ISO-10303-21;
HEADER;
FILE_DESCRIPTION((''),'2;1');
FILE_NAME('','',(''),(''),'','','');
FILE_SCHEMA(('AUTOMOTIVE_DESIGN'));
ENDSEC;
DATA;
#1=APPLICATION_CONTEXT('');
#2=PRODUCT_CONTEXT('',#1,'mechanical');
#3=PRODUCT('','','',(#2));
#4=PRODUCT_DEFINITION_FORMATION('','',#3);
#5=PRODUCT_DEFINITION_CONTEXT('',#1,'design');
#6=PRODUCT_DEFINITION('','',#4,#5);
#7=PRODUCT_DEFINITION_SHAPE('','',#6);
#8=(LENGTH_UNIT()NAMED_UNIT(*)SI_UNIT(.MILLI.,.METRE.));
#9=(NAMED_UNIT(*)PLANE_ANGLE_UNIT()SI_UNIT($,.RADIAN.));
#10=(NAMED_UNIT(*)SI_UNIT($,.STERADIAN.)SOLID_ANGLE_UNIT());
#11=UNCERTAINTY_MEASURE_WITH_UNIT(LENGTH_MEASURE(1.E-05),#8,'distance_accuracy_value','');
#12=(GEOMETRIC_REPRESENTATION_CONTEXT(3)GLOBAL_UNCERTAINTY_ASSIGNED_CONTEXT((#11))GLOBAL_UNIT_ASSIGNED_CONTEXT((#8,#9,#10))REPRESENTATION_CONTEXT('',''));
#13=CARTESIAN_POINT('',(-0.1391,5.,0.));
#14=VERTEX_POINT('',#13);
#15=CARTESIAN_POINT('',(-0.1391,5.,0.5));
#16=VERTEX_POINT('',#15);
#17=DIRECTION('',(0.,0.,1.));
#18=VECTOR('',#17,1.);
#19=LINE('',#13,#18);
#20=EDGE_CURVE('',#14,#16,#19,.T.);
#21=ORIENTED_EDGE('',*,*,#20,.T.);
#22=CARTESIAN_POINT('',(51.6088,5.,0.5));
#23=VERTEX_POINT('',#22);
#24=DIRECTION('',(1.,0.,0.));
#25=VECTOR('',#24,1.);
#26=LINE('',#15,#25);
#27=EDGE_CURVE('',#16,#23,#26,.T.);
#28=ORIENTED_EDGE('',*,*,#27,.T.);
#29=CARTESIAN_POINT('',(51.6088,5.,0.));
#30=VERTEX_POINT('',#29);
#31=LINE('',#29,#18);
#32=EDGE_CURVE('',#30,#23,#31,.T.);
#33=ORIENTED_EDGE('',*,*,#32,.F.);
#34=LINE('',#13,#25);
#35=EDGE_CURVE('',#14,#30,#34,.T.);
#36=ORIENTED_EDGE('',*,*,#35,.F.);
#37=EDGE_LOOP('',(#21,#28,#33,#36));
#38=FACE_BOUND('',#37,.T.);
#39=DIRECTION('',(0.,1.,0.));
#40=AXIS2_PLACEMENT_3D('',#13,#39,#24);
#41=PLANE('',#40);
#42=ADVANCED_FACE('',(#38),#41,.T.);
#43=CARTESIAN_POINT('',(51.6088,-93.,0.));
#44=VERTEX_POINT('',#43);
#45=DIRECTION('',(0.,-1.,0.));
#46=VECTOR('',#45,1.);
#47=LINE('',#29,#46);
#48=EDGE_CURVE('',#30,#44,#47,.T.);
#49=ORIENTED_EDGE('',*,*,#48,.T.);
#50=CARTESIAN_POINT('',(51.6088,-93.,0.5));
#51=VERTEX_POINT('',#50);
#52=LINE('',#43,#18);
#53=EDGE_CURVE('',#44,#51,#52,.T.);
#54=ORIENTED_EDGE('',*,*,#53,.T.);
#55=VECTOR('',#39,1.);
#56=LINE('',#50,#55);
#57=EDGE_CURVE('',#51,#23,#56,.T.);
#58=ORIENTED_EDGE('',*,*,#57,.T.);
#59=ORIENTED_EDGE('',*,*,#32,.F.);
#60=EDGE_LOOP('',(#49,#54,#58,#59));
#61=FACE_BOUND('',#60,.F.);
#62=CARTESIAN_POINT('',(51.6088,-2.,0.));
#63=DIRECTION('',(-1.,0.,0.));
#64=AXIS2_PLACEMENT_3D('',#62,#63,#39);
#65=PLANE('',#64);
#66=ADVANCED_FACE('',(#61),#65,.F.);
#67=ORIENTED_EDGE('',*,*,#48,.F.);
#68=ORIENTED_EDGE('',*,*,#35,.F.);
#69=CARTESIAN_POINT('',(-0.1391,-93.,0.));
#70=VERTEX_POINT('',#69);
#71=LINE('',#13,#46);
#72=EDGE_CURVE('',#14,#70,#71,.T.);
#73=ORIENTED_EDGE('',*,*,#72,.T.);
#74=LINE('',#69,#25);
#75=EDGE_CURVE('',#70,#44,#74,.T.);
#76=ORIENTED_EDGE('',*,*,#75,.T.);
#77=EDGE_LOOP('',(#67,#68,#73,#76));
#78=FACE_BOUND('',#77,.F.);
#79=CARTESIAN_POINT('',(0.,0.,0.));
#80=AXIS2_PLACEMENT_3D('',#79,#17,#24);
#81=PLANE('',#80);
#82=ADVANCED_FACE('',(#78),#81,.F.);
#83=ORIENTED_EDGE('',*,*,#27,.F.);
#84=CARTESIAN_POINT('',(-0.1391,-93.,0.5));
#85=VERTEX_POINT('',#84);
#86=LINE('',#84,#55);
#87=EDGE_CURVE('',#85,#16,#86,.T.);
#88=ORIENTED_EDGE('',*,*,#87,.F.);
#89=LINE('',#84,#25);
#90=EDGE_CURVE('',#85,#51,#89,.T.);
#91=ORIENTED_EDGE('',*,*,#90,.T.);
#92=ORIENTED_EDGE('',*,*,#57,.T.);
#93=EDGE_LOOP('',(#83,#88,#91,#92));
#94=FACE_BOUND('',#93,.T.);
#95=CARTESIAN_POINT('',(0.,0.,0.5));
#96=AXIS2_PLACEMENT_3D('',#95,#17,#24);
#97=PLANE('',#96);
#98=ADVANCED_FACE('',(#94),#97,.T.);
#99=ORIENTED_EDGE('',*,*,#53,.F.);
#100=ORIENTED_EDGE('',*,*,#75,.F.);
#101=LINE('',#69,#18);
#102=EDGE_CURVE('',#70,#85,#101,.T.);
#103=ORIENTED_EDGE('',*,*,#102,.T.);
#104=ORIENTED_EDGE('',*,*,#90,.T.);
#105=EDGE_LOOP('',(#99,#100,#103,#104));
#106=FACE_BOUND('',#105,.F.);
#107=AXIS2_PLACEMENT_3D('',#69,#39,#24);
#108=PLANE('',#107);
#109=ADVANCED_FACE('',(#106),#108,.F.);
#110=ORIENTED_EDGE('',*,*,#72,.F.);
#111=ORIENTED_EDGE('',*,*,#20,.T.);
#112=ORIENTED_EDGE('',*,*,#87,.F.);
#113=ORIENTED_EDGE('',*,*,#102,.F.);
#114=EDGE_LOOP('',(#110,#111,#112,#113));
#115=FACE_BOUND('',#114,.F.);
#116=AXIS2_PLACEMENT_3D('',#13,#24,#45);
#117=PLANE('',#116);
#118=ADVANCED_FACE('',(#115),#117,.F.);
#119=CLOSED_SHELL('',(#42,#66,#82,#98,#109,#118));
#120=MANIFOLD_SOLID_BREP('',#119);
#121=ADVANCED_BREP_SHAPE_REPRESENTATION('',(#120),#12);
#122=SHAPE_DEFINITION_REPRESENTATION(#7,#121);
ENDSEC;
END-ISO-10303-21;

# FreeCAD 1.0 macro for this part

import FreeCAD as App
import Part
import Sketcher

doc = App.newDocument("Part")
params = doc.addObject("Spreadsheet::Sheet", "Params")
for row, (alias, value) in enumerate([
    ("sketch1_height", "98 mm"),
    ("pad1_length", "0.5 mm"),
], start=1):
    params.set(f"A{row}", alias)
    params.set(f"B{row}", "=" + value)
    params.setAlias(f"B{row}", alias)

body = doc.addObject("PartDesign::Body", "Body")

# Sketch on XY plane
sketch1 = doc.addObject("Sketcher::SketchObject", "Sketch")
body.addObject(sketch1)
sketch1.AttachmentSupport = (doc.XY_Plane, [""])
sketch1.MapMode = "FlatFace"
sketch1.addGeometry([
    Part.LineSegment(App.Vector(0, 5, 0), App.Vector(0, -93, 0)),
    Part.LineSegment(App.Vector(0, -93, 0), App.Vector(52, -93, 0)),
    Part.LineSegment(App.Vector(52, -93, 0), App.Vector(52, 5, 0)),
    Part.LineSegment(App.Vector(52, 5, 0), App.Vector(0, 5, 0)),
], False)
sketch1.addConstraint([
    Sketcher.Constraint("Coincident", 0, 2, 1, 1),
    Sketcher.Constraint("Coincident", 1, 2, 2, 1),
    Sketcher.Constraint("Coincident", 2, 2, 3, 1),
    Sketcher.Constraint("Coincident", 3, 2, 0, 1),
    Sketcher.Constraint("Vertical", 0),
    Sketcher.Constraint("Horizontal", 1),
    Sketcher.Constraint("Vertical", 2),
    Sketcher.Constraint("Horizontal", 3),
    Sketcher.Constraint("DistanceY", 0, 2, 0, 1, 98.0),
    Sketcher.Constraint("DistanceY", 0, 2, -1, 1, 93.0),
    Sketcher.Constraint("DistanceX", 1, 1, 1, 2, 51.748),
    Sketcher.Constraint("DistanceX", 0, 2, -1, 1, 0.139),
])
sketch1.setExpression("Constraints[8]", "Params.sketch1_height")
pad1 = doc.addObject("PartDesign::Pad", "Pad")
body.addObject(pad1)
pad1.Profile = sketch1
pad1.setExpression("Length", "Params.pad1_length")

doc.recompute()
